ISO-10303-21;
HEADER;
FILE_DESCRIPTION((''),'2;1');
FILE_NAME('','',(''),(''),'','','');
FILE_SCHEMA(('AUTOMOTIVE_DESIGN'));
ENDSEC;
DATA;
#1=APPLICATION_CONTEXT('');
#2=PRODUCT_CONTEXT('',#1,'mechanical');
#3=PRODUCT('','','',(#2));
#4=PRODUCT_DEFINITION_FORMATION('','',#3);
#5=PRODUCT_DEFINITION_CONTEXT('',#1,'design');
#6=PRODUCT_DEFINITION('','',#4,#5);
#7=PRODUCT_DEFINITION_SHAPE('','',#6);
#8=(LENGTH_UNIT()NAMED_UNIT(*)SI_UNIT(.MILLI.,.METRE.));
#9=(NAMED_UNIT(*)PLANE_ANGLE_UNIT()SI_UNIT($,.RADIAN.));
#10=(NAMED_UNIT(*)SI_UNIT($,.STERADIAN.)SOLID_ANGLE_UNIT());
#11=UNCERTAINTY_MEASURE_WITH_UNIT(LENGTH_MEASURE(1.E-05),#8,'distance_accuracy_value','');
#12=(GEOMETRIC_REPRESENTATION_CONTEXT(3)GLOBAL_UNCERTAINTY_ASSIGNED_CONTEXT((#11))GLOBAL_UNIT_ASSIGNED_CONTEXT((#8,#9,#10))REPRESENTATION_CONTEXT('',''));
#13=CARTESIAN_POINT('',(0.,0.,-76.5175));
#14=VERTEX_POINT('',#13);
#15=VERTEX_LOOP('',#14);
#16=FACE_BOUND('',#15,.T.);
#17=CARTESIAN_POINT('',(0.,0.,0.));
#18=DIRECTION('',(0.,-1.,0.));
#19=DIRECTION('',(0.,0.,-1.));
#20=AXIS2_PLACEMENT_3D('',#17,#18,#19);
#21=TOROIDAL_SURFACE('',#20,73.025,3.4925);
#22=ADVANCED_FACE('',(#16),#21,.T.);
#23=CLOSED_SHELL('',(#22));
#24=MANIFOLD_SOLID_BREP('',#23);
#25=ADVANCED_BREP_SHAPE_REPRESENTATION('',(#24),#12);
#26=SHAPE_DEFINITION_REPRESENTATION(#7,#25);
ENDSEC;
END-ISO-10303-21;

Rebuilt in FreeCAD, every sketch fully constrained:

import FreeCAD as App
import Part
import Sketcher
from FreeCAD import Vector
Q = App.Units.Quantity

doc = App.newDocument("Part")
body = doc.addObject("PartDesign::Body", "Body")

# Sketch on XY plane
sketch1 = doc.addObject("Sketcher::SketchObject", "Sketch")
body.addObject(sketch1)
sketch1.AttachmentSupport = (doc.XY_Plane, [""])
sketch1.MapMode = "FlatFace"
sketch1.addGeometry(Part.Circle(Vector(-73, 0, 0), Vector(0, 0, 1), 3.5), False)
sketch1.addConstraint([
    Sketcher.Constraint("PointOnObject", 0, 3, -1),
    Sketcher.Constraint("Diameter", 0, Q("0.275 in")),
    Sketcher.Constraint("DistanceX", 0, 3, -1, 1, Q("2.875 in")),
])
revolution = doc.addObject("PartDesign::Revolution", "Revolution")
body.addObject(revolution)
revolution.Profile = sketch1
revolution.ReferenceAxis = (sketch1, ["V_Axis"])
revolution.Angle = 360

doc.recompute()
